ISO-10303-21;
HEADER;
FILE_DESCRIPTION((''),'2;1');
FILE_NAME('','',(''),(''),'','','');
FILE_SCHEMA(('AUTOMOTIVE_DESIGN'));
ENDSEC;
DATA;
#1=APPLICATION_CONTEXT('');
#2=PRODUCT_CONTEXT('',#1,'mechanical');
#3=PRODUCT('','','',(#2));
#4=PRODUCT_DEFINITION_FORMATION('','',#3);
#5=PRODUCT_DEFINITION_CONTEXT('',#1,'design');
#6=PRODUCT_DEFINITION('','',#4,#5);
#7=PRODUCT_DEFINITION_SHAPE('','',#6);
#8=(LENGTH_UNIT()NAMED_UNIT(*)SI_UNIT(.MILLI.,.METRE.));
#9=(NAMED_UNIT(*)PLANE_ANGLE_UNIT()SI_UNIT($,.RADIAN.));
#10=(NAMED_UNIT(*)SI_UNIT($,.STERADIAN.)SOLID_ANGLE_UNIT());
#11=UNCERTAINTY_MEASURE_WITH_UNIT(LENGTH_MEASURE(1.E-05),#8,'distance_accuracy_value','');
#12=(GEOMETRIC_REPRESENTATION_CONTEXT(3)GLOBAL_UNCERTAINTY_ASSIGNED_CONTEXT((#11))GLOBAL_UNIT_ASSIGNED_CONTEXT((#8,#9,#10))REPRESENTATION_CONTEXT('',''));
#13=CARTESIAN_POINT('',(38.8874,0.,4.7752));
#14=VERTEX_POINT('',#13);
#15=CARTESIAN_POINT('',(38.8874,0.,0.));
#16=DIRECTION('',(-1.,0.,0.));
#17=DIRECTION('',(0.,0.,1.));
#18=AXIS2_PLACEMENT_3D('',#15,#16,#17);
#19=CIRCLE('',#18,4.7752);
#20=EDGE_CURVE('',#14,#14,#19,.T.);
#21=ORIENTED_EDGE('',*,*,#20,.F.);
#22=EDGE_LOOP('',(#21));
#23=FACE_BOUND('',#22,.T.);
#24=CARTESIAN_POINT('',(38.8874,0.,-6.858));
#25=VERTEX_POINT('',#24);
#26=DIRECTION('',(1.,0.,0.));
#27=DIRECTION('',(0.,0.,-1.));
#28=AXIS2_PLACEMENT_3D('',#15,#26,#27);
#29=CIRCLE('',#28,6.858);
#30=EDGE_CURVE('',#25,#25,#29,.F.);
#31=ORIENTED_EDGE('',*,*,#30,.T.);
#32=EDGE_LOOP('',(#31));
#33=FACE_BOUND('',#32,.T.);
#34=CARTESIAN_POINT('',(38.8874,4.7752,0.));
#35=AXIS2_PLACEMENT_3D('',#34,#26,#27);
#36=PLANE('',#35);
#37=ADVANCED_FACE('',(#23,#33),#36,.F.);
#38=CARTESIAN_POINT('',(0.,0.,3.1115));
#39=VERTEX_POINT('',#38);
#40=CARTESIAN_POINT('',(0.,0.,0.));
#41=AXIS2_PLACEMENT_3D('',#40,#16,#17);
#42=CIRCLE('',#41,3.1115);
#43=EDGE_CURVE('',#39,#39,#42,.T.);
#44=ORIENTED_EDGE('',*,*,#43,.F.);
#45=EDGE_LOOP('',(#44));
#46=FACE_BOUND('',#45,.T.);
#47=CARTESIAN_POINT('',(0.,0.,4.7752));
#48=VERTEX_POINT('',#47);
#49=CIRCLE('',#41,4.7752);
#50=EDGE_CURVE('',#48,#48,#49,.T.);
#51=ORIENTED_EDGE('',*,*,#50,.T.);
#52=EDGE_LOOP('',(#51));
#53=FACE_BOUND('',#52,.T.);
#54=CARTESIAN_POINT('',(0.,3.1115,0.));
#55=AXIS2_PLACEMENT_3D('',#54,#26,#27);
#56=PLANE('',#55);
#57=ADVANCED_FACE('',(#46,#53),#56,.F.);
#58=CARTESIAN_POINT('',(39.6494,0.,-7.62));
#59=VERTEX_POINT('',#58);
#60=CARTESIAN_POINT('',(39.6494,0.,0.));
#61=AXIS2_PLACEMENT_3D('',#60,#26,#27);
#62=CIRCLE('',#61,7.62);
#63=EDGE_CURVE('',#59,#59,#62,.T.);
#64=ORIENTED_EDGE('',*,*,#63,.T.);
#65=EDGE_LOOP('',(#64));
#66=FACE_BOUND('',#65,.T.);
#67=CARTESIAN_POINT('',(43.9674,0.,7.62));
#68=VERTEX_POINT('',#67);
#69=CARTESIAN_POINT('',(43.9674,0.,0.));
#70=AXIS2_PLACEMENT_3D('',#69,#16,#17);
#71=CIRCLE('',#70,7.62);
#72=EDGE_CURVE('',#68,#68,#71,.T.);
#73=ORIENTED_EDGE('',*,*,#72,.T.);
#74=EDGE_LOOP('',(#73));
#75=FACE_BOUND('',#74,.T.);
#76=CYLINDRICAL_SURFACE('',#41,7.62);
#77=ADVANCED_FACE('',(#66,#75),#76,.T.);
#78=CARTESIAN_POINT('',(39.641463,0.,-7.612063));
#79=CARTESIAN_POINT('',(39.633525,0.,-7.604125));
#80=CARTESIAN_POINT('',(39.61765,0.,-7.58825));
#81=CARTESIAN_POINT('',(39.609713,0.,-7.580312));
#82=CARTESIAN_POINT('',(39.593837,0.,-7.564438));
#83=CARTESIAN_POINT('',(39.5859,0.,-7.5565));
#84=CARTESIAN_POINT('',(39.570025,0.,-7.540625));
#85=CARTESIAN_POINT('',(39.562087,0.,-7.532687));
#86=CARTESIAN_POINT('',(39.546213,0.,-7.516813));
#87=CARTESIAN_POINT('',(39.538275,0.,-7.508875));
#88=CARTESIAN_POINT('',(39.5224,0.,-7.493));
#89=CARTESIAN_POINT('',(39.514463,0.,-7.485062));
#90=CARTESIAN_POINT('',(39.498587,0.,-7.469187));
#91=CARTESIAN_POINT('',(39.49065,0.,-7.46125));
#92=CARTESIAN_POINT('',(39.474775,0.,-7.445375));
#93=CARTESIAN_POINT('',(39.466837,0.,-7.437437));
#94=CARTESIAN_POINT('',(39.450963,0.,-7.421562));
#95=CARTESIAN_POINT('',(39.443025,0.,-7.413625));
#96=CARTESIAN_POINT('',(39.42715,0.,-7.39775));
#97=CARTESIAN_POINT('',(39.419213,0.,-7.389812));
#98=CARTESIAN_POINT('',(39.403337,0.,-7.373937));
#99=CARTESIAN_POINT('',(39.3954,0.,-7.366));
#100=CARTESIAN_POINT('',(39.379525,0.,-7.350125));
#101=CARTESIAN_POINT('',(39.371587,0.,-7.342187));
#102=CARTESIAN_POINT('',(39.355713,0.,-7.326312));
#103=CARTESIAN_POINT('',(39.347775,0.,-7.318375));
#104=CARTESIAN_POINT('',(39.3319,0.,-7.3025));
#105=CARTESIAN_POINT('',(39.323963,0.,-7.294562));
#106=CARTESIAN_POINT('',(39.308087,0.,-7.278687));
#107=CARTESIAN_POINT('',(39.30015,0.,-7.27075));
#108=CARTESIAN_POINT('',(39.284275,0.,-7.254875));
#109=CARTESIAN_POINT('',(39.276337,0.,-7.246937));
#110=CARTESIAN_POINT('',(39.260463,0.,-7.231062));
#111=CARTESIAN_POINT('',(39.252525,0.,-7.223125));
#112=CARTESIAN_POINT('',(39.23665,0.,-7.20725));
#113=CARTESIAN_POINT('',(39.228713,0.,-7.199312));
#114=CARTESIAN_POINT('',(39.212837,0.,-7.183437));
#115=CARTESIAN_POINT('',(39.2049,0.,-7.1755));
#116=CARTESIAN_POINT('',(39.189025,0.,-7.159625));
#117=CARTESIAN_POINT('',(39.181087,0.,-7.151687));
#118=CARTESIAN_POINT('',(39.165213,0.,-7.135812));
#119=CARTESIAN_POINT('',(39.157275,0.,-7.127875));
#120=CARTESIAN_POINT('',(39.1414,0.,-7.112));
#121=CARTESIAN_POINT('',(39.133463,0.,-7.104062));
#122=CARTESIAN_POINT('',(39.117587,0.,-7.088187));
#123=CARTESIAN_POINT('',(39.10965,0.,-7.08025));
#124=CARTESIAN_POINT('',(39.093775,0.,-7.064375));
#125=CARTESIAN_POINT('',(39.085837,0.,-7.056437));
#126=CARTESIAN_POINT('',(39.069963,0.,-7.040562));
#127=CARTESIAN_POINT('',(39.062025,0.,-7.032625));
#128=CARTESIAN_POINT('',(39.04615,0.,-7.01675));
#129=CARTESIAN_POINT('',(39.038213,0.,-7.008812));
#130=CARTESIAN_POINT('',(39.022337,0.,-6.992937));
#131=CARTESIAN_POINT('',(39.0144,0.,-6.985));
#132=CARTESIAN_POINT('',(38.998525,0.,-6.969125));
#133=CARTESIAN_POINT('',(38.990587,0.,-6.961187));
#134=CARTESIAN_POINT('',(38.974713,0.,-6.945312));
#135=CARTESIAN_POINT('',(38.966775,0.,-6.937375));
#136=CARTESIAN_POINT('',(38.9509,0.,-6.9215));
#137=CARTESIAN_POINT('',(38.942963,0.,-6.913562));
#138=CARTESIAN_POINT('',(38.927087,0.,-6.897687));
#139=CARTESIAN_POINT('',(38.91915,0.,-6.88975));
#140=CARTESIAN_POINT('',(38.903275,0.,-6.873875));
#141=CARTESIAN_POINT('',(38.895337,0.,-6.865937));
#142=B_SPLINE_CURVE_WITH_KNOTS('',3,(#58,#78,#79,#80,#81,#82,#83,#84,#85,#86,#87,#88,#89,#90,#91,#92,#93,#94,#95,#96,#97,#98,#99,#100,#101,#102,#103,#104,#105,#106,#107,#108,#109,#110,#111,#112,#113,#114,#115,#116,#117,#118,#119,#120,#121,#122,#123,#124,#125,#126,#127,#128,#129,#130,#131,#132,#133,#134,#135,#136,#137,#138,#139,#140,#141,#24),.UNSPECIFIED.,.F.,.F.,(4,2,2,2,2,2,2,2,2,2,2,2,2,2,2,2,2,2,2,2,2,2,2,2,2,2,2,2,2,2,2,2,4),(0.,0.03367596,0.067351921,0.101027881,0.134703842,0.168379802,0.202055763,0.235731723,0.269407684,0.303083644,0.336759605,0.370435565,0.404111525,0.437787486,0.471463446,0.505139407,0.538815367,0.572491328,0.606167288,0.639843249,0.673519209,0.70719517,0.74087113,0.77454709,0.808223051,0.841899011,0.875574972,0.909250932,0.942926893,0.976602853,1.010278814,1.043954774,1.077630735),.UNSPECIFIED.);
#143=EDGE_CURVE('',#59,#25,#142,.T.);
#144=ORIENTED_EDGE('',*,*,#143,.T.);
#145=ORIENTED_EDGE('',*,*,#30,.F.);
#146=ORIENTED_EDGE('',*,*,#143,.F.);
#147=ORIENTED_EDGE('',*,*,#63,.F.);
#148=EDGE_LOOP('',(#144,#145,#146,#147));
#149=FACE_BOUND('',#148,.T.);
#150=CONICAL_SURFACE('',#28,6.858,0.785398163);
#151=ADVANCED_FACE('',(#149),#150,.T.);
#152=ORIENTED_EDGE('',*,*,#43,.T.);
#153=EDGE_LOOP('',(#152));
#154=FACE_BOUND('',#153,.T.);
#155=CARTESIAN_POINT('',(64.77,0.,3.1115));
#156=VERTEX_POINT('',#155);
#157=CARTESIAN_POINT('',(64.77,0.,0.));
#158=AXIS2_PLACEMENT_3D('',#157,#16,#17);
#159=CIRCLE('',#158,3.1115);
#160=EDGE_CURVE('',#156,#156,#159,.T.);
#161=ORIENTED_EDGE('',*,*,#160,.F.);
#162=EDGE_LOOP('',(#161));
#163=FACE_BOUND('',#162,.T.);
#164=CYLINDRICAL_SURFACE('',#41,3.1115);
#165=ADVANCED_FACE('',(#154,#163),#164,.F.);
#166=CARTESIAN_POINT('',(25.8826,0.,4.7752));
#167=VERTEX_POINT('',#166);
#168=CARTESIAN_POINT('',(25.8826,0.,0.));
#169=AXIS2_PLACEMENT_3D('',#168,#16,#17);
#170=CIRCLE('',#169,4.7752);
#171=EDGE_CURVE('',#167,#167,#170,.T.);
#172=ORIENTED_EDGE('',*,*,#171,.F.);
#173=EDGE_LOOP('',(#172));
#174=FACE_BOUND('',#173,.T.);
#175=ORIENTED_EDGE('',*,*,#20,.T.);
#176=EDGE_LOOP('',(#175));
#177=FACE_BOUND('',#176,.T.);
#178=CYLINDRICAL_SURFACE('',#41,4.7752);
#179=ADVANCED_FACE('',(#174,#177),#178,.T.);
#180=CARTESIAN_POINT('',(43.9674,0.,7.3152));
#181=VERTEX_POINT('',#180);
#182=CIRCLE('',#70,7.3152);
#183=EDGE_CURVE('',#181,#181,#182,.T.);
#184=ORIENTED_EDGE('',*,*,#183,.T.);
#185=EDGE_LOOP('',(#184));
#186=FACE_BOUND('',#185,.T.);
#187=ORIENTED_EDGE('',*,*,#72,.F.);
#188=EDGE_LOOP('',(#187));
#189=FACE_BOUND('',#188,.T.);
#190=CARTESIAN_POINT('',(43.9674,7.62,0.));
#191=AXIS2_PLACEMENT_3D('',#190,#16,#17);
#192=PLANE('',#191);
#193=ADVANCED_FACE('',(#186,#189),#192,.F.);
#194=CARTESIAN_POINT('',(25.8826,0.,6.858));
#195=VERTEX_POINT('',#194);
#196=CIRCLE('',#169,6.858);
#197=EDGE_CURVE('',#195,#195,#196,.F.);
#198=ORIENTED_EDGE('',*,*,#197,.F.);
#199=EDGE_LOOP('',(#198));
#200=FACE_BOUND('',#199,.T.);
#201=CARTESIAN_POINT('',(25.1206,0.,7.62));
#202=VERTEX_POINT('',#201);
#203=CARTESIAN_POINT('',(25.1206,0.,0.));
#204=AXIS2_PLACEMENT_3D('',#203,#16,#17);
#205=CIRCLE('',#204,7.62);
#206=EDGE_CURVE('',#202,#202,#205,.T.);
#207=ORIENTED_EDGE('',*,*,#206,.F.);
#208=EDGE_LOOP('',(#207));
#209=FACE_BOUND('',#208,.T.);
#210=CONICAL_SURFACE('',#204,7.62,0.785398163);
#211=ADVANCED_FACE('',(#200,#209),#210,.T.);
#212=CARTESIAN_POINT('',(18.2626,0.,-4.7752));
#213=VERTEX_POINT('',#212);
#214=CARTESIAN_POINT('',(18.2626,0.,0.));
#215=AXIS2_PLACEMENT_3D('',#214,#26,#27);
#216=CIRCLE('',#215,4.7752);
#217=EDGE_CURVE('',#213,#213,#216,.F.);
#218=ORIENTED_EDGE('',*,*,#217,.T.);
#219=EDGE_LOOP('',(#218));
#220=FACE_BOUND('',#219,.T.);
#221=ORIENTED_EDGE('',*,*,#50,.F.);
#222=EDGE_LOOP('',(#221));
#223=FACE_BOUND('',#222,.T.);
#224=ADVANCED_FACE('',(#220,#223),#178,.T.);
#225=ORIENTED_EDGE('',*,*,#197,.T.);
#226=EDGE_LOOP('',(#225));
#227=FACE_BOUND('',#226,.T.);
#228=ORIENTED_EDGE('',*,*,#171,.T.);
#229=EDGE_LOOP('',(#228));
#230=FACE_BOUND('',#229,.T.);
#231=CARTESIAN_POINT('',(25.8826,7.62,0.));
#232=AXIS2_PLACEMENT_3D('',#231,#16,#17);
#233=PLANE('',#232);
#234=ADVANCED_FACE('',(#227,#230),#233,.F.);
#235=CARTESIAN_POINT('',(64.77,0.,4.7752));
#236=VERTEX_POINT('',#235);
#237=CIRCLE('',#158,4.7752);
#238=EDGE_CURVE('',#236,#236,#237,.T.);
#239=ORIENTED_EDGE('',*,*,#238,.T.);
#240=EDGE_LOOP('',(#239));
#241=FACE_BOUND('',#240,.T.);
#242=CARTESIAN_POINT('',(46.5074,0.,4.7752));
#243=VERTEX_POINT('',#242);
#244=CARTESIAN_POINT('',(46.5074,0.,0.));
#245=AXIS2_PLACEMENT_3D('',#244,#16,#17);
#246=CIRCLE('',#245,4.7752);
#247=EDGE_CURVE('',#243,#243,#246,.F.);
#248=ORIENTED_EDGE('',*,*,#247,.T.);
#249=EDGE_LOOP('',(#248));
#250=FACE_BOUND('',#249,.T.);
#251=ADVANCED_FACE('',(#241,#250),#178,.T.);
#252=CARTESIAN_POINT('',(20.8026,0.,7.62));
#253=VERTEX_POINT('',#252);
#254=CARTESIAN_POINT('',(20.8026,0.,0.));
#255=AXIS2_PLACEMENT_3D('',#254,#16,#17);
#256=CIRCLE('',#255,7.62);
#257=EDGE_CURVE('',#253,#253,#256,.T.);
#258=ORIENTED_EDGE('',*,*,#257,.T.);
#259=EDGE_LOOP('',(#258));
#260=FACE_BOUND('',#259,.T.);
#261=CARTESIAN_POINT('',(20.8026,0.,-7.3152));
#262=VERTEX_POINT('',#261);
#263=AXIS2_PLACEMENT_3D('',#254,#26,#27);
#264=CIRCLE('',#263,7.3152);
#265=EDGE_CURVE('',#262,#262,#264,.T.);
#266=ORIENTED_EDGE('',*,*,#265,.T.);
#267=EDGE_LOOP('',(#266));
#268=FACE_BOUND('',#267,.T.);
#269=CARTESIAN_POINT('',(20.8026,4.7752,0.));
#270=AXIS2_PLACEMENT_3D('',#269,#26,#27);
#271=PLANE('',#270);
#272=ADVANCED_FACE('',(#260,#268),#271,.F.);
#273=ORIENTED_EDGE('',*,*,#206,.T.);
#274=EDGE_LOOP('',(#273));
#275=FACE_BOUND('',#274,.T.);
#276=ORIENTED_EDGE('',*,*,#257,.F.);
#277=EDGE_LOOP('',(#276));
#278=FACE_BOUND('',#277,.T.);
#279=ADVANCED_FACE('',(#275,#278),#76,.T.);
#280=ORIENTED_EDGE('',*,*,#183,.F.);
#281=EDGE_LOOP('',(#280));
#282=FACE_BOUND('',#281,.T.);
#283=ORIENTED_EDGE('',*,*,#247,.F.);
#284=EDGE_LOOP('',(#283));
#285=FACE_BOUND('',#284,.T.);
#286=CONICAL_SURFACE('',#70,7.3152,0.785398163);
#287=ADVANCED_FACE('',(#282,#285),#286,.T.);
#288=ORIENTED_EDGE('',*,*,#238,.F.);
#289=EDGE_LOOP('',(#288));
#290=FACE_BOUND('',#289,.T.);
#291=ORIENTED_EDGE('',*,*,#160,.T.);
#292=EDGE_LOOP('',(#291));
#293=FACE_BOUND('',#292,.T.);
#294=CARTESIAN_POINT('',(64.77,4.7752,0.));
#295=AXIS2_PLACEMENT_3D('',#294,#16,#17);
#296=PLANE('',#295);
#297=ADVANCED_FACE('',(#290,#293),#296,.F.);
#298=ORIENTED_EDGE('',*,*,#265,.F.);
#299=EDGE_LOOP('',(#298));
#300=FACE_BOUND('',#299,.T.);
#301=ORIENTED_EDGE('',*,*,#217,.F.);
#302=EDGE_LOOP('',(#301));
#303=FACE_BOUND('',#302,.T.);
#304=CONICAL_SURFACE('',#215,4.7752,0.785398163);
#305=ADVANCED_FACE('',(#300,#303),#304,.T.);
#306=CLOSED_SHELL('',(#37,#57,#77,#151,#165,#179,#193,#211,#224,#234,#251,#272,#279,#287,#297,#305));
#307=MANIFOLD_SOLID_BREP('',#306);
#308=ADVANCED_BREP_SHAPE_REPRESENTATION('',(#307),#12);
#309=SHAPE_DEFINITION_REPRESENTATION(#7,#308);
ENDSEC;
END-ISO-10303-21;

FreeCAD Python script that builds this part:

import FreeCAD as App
import Part
import Sketcher

V = App.Vector
Q = App.Units.Quantity


def edges_at(feature, points):
    """Names of the edges that pass closest to the given points."""
    edges = feature.Shape.Edges
    near = lambda p: min(range(len(edges)), key=lambda i: edges[i].distToShape(Part.Vertex(*p))[0])
    return sorted({f"Edge{near(p) + 1}" for p in points})

doc = App.newDocument("Part")
body = doc.addObject("PartDesign::Body", "Body")

sketch1 = body.newObject("Sketcher::SketchObject", "Sketch")
sketch1.AttachmentSupport = (doc.getObject("XY_Plane"), [""])
sketch1.MapMode = "FlatFace"
sketch1.addGeometry([
    Part.LineSegment(V(0, 4.8, 0), V(0, 3.1, 0)),
    Part.LineSegment(V(0, 3.1, 0), V(64.8, 3.1, 0)),
    Part.LineSegment(V(64.8, 3.1, 0), V(64.8, 4.8, 0)),
    Part.LineSegment(V(64.8, 4.8, 0), V(44, 4.8, 0)),
    Part.LineSegment(V(44, 4.8, 0), V(44, 7.6, 0)),
    Part.LineSegment(V(44, 7.6, 0), V(38.9, 7.6, 0)),
    Part.LineSegment(V(38.9, 7.6, 0), V(38.9, 4.8, 0)),
    Part.LineSegment(V(38.9, 4.8, 0), V(25.9, 4.8, 0)),
    Part.LineSegment(V(25.9, 4.8, 0), V(25.9, 7.6, 0)),
    Part.LineSegment(V(25.9, 7.6, 0), V(20.8, 7.6, 0)),
    Part.LineSegment(V(20.8, 7.6, 0), V(20.8, 4.8, 0)),
    Part.LineSegment(V(20.8, 4.8, 0), V(0, 4.8, 0)),
], False)
sketch1.addConstraint([
    Sketcher.Constraint("Coincident", 0, 2, 1, 1),
    Sketcher.Constraint("Coincident", 1, 2, 2, 1),
    Sketcher.Constraint("Coincident", 2, 2, 3, 1),
    Sketcher.Constraint("Coincident", 3, 2, 4, 1),
    Sketcher.Constraint("Coincident", 4, 2, 5, 1),
    Sketcher.Constraint("Coincident", 5, 2, 6, 1),
    Sketcher.Constraint("Coincident", 6, 2, 7, 1),
    Sketcher.Constraint("Coincident", 7, 2, 8, 1),
    Sketcher.Constraint("Coincident", 8, 2, 9, 1),
    Sketcher.Constraint("Coincident", 9, 2, 10, 1),
    Sketcher.Constraint("Coincident", 10, 2, 11, 1),
    Sketcher.Constraint("Coincident", 11, 2, 0, 1),
    Sketcher.Constraint("Vertical", 0),
    Sketcher.Constraint("Horizontal", 1),
    Sketcher.Constraint("Vertical", 2),
    Sketcher.Constraint("Horizontal", 3),
    Sketcher.Constraint("Vertical", 4),
    Sketcher.Constraint("Horizontal", 5),
    Sketcher.Constraint("Vertical", 6),
    Sketcher.Constraint("Horizontal", 7),
    Sketcher.Constraint("Vertical", 8),
    Sketcher.Constraint("Horizontal", 9),
    Sketcher.Constraint("Vertical", 10),
    Sketcher.Constraint("Horizontal", 11),
    Sketcher.Constraint("PointOnObject", 0, 2, -2),
    Sketcher.Constraint("Horizontal", 3, 2, 6, 2),
    Sketcher.Constraint("Horizontal", 5, 2, 8, 2),
    Sketcher.Constraint("Horizontal", 7, 2, 10, 2),
    Sketcher.Constraint("Equal", 5, 9),
    Sketcher.Constraint("Equal", 3, 11),
    Sketcher.Constraint("DistanceX", 5, 2, 5, 1, Q("0.2 in")),
    Sketcher.Constraint("DistanceX", 1, 1, 1, 2, Q("2.55 in")),
    Sketcher.Constraint("DistanceY", -1, 1, 4, 2, Q("0.3 in")),
    Sketcher.Constraint("DistanceX", 3, 2, 3, 1, Q("0.819 in")),
    Sketcher.Constraint("DistanceY", 4, 1, 4, 2, Q("0.112 in")),
    Sketcher.Constraint("DistanceY", 0, 2, 0, 1, Q("0.0655 in")),
])
revolution = body.newObject("PartDesign::Revolution", "Revolution")
revolution.Profile = sketch1
revolution.ReferenceAxis = (sketch1, ["H_Axis"])
revolution.Angle = 360
doc.recompute()

chamfer = body.newObject("PartDesign::Chamfer", "Chamfer")
chamfer.Base = (revolution, edges_at(revolution, [(38.887, 0, -7.62), (25.883, 0, -7.62)]))
chamfer.Size = Q("0.03 in")
doc.recompute()

chamfer2 = body.newObject("PartDesign::Chamfer", "Chamfer001")
chamfer2.Base = (chamfer, edges_at(chamfer, [(43.967, 0, -4.775), (20.803, 0, -4.775)]))
chamfer2.Size = Q("0.1 in")

doc.recompute()
